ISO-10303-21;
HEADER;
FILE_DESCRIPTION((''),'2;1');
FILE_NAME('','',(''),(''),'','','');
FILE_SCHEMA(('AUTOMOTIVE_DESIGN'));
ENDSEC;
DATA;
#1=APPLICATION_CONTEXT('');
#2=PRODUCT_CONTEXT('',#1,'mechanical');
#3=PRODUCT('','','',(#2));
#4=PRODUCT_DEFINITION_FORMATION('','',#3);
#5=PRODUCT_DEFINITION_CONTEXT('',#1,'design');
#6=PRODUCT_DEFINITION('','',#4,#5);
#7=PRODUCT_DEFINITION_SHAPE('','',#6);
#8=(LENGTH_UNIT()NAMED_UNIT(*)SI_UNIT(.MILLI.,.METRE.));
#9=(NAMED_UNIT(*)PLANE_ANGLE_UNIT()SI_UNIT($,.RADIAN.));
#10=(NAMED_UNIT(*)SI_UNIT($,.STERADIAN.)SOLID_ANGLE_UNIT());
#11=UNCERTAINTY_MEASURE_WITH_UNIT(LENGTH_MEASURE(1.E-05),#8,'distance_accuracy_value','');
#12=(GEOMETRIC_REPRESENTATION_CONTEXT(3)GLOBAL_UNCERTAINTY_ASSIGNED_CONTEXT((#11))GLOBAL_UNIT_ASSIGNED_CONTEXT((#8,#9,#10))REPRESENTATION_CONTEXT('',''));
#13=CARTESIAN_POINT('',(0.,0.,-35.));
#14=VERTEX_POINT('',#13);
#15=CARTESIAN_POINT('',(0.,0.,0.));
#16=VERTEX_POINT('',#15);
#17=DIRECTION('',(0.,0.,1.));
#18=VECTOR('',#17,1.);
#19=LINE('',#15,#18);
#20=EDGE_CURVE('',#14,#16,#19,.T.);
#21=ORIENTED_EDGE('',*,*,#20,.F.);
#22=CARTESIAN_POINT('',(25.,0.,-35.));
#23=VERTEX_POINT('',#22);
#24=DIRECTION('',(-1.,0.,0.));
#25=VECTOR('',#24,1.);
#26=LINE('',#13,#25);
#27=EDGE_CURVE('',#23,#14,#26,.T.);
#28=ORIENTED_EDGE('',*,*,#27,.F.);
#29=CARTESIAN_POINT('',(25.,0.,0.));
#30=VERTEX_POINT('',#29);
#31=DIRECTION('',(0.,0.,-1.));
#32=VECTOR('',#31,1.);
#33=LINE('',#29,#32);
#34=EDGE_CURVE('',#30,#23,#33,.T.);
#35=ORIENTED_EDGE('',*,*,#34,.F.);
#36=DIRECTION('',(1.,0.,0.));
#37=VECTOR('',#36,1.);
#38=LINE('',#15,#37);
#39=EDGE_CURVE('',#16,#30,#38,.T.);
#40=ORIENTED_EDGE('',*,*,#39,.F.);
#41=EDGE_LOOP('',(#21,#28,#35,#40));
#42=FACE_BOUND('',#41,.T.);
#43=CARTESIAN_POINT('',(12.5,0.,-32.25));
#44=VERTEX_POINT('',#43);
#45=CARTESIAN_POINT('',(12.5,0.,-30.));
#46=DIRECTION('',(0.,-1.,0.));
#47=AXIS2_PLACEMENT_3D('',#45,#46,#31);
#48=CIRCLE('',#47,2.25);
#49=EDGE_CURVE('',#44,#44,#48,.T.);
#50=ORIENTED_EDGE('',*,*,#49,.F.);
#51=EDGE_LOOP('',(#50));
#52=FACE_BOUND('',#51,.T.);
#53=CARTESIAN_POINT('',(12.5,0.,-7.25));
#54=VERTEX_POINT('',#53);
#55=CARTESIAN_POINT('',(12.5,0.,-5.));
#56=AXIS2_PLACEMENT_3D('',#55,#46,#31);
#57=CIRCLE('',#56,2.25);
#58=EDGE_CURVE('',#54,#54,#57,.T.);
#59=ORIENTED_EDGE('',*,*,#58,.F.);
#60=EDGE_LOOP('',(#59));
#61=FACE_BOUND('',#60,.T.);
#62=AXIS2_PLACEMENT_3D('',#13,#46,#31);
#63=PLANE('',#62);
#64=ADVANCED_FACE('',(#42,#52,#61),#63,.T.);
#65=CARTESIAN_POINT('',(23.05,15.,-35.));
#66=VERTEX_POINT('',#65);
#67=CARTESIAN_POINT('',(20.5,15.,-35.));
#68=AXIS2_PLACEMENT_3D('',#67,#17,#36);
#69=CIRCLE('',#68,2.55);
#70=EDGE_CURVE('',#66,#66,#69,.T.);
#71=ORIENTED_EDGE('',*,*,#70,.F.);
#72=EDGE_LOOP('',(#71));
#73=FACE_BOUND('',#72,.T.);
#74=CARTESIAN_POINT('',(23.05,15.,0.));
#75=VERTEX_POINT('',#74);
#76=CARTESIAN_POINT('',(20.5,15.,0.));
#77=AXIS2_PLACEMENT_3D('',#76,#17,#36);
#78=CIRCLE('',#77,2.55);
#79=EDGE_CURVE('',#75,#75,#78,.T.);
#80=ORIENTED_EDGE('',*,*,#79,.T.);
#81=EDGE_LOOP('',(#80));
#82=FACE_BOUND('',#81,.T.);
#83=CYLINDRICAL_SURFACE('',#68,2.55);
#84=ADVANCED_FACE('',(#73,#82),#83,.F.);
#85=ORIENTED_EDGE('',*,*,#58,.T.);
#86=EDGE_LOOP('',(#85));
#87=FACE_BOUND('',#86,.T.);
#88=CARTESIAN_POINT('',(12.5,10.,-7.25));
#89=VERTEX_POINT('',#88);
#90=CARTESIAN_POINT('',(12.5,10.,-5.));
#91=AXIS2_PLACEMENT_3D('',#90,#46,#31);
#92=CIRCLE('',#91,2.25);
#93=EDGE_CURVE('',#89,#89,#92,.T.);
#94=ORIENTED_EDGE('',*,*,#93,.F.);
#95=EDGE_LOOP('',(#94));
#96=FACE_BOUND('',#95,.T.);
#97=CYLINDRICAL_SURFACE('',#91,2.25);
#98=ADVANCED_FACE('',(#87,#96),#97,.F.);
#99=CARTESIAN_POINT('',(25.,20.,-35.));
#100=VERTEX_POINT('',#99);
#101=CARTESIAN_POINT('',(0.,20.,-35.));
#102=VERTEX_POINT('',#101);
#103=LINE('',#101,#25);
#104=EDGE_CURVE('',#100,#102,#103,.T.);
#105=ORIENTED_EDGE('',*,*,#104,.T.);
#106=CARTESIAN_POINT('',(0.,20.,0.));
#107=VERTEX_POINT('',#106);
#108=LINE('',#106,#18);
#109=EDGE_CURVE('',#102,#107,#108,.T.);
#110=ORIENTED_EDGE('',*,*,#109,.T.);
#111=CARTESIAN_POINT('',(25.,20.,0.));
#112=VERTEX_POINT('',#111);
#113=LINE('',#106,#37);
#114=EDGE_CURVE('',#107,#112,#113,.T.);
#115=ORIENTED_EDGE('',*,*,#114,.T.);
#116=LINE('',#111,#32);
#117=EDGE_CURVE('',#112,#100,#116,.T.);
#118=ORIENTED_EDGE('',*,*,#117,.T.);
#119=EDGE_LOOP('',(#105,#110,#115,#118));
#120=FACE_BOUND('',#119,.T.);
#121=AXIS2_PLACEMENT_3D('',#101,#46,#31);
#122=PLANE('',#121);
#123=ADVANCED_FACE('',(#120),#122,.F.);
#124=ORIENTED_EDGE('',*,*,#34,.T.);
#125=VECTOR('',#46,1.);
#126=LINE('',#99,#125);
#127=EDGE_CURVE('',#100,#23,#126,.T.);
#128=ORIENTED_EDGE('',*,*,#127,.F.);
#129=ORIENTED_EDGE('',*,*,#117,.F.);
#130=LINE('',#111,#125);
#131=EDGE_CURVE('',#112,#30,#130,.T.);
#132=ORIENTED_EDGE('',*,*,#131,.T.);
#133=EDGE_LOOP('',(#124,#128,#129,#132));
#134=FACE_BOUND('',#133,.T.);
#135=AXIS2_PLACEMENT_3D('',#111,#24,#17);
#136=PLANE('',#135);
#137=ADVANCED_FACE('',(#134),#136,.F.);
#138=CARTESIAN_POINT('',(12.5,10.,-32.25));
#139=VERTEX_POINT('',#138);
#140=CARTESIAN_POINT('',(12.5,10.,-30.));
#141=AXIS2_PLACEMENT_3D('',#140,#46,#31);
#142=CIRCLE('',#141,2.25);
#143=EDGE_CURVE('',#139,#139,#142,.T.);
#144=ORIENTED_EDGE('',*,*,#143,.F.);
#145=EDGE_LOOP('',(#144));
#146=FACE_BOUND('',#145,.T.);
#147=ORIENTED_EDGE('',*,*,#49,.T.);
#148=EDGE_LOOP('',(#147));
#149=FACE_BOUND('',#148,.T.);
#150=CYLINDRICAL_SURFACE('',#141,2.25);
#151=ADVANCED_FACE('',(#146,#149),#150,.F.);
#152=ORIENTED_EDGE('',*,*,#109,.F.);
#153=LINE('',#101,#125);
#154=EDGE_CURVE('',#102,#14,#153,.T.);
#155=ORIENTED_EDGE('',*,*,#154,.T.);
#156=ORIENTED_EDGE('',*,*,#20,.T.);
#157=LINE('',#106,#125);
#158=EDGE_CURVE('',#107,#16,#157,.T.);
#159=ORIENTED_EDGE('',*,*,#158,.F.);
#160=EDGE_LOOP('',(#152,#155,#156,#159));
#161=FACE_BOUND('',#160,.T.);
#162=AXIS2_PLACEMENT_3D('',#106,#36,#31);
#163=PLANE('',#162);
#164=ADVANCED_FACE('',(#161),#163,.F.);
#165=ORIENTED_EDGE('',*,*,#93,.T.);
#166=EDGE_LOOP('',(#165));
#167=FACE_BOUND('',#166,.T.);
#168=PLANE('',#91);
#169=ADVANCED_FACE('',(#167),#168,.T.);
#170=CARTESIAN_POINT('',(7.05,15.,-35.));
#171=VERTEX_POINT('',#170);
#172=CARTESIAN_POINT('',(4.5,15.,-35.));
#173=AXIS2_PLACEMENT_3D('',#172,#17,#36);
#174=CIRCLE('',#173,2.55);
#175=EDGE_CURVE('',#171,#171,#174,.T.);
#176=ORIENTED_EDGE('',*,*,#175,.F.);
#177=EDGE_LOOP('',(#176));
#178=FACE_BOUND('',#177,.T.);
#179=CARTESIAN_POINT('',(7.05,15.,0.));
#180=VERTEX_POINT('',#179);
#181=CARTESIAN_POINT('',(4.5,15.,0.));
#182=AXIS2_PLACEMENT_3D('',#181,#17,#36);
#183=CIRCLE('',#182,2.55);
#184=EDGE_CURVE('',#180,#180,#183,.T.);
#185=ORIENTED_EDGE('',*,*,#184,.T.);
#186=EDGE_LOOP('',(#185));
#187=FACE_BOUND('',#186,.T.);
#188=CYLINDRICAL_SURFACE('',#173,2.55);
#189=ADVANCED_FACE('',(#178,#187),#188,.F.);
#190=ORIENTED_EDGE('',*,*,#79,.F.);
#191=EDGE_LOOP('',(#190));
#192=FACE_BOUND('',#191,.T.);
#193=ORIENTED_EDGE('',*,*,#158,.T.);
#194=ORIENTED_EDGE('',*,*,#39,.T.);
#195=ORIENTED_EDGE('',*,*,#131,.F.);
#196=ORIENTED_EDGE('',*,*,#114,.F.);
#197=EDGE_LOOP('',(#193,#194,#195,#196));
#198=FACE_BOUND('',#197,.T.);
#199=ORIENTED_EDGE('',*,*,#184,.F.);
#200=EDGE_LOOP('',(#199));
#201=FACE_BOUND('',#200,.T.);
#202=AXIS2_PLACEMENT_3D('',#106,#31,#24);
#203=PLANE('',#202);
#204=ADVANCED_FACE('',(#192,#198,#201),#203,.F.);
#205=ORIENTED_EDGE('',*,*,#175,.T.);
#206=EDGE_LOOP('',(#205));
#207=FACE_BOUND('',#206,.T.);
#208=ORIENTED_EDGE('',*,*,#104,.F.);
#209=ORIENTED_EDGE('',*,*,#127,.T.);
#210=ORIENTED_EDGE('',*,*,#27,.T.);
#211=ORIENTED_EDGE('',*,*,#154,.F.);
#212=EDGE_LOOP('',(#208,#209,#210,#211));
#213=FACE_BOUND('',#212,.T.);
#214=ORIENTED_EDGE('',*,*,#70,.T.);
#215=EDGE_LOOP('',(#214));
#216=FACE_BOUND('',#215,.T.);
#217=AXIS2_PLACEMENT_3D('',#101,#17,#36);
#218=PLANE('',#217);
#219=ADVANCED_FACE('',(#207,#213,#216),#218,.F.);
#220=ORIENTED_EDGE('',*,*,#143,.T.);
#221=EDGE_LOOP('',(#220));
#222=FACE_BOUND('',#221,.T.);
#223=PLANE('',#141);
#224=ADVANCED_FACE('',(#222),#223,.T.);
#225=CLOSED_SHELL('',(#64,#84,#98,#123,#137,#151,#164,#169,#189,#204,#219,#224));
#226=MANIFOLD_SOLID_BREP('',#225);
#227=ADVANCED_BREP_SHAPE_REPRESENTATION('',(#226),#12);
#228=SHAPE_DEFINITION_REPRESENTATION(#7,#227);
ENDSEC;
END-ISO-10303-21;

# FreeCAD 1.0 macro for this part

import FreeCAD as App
import Part
import Sketcher
Q = App.Units.Quantity


def add_polygon(sketch, points):
    """Adds a closed chain of lines whose ends are joined by coincident constraints."""
    first, n = sketch.GeometryCount, len(points)
    for a, b in zip(points, points[1:] + points[:1]):
        sketch.addGeometry(Part.LineSegment(App.Vector(*a, 0), App.Vector(*b, 0)), False)
    for i in range(n):
        sketch.addConstraint(Sketcher.Constraint("Coincident", first + i, 2, first + (i + 1) % n, 1))

doc = App.newDocument("Part")
params = doc.addObject("Spreadsheet::Sheet", "Params")
for row, (alias, value) in enumerate([
    ("sketch1_width", "25 mm"),
    ("sketch1_height", "35 mm"),
    ("pad1_length", "20 mm"),
    ("sketch2_diameter", "5.1 mm"),
    ("sketch3_diameter", "4.5 mm"),
    ("pocket2_length", "10 mm"),
], start=1):
    params.set(f"A{row}", alias)
    params.set(f"B{row}", "=" + value)
    params.setAlias(f"B{row}", alias)

body = doc.addObject("PartDesign::Body", "Body")

sketch1 = doc.addObject("Sketcher::SketchObject", "Sketch")
body.addObject(sketch1)
sketch1.AttachmentSupport = (doc.XZ_Plane, [""])
sketch1.MapMode = "FlatFace"
add_polygon(sketch1, [(0, -35), (0, 0), (25, 0), (25, -35)])
sketch1.addConstraint([
    Sketcher.Constraint("Vertical", 0),
    Sketcher.Constraint("Horizontal", 1),
    Sketcher.Constraint("Vertical", 2),
    Sketcher.Constraint("Horizontal", 3),
    Sketcher.Constraint("Coincident", 0, 2, -1, 1),
    Sketcher.Constraint("DistanceX", 1, 1, 1, 2, Q("25 mm")),
    Sketcher.Constraint("DistanceY", 0, 1, 0, 2, Q("35 mm")),
])
sketch1.setExpression("Constraints[9]", "Params.sketch1_width")
sketch1.setExpression("Constraints[10]", "Params.sketch1_height")
pad1 = doc.addObject("PartDesign::Pad", "Pad")
body.addObject(pad1)
pad1.Profile = sketch1
pad1.setExpression("Length", "Params.pad1_length")
pad1.Reversed = True

sketch2 = doc.addObject("Sketcher::SketchObject", "Sketch001")
body.addObject(sketch2)
sketch2.AttachmentSupport = (doc.XY_Plane, [""])
sketch2.MapMode = "FlatFace"
sketch2.addGeometry([
    Part.Circle(App.Vector(4.5, 15, 0), App.Vector(0, 0, 1), 2.55),
    Part.Circle(App.Vector(20.5, 15, 0), App.Vector(0, 0, 1), 2.55),
], False)
sketch2.addConstraint([
    Sketcher.Constraint("Equal", 0, 1),
    Sketcher.Constraint("Horizontal", 0, 3, 1, 3),
    Sketcher.Constraint("Diameter", 0, Q("5.1 mm")),
    Sketcher.Constraint("DistanceY", -1, 1, 0, 3, Q("15 mm")),
    Sketcher.Constraint("DistanceX", 0, 3, 1, 3, Q("16 mm")),
    Sketcher.Constraint("DistanceX", -1, 1, 0, 3, Q("4.5 mm")),
])
sketch2.setExpression("Constraints[2]", "Params.sketch2_diameter")
pocket1 = doc.addObject("PartDesign::Pocket", "Pocket")
body.addObject(pocket1)
pocket1.Profile = sketch2
pocket1.Type = "ThroughAll"

sketch3 = doc.addObject("Sketcher::SketchObject", "Sketch002")
body.addObject(sketch3)
sketch3.AttachmentSupport = (doc.XZ_Plane, [""])
sketch3.MapMode = "FlatFace"
sketch3.addGeometry([
    Part.Circle(App.Vector(12.5, -5, 0), App.Vector(0, 0, 1), 2.25),
    Part.Circle(App.Vector(12.5, -30, 0), App.Vector(0, 0, 1), 2.25),
], False)
sketch3.addConstraint([
    Sketcher.Constraint("Equal", 0, 1),
    Sketcher.Constraint("Vertical", 0, 3, 1, 3),
    Sketcher.Constraint("Diameter", 0, Q("4.5 mm")),
    Sketcher.Constraint("DistanceY", 0, 3, -1, 1, Q("5 mm")),
    Sketcher.Constraint("DistanceY", 1, 3, -1, 1, Q("30 mm")),
    Sketcher.Constraint("DistanceX", -1, 1, 0, 3, Q("12.5 mm")),
])
sketch3.setExpression("Constraints[2]", "Params.sketch3_diameter")
pocket2 = doc.addObject("PartDesign::Pocket", "Pocket001")
body.addObject(pocket2)
pocket2.Profile = sketch3
pocket2.setExpression("Length", "Params.pocket2_length")

doc.recompute()
